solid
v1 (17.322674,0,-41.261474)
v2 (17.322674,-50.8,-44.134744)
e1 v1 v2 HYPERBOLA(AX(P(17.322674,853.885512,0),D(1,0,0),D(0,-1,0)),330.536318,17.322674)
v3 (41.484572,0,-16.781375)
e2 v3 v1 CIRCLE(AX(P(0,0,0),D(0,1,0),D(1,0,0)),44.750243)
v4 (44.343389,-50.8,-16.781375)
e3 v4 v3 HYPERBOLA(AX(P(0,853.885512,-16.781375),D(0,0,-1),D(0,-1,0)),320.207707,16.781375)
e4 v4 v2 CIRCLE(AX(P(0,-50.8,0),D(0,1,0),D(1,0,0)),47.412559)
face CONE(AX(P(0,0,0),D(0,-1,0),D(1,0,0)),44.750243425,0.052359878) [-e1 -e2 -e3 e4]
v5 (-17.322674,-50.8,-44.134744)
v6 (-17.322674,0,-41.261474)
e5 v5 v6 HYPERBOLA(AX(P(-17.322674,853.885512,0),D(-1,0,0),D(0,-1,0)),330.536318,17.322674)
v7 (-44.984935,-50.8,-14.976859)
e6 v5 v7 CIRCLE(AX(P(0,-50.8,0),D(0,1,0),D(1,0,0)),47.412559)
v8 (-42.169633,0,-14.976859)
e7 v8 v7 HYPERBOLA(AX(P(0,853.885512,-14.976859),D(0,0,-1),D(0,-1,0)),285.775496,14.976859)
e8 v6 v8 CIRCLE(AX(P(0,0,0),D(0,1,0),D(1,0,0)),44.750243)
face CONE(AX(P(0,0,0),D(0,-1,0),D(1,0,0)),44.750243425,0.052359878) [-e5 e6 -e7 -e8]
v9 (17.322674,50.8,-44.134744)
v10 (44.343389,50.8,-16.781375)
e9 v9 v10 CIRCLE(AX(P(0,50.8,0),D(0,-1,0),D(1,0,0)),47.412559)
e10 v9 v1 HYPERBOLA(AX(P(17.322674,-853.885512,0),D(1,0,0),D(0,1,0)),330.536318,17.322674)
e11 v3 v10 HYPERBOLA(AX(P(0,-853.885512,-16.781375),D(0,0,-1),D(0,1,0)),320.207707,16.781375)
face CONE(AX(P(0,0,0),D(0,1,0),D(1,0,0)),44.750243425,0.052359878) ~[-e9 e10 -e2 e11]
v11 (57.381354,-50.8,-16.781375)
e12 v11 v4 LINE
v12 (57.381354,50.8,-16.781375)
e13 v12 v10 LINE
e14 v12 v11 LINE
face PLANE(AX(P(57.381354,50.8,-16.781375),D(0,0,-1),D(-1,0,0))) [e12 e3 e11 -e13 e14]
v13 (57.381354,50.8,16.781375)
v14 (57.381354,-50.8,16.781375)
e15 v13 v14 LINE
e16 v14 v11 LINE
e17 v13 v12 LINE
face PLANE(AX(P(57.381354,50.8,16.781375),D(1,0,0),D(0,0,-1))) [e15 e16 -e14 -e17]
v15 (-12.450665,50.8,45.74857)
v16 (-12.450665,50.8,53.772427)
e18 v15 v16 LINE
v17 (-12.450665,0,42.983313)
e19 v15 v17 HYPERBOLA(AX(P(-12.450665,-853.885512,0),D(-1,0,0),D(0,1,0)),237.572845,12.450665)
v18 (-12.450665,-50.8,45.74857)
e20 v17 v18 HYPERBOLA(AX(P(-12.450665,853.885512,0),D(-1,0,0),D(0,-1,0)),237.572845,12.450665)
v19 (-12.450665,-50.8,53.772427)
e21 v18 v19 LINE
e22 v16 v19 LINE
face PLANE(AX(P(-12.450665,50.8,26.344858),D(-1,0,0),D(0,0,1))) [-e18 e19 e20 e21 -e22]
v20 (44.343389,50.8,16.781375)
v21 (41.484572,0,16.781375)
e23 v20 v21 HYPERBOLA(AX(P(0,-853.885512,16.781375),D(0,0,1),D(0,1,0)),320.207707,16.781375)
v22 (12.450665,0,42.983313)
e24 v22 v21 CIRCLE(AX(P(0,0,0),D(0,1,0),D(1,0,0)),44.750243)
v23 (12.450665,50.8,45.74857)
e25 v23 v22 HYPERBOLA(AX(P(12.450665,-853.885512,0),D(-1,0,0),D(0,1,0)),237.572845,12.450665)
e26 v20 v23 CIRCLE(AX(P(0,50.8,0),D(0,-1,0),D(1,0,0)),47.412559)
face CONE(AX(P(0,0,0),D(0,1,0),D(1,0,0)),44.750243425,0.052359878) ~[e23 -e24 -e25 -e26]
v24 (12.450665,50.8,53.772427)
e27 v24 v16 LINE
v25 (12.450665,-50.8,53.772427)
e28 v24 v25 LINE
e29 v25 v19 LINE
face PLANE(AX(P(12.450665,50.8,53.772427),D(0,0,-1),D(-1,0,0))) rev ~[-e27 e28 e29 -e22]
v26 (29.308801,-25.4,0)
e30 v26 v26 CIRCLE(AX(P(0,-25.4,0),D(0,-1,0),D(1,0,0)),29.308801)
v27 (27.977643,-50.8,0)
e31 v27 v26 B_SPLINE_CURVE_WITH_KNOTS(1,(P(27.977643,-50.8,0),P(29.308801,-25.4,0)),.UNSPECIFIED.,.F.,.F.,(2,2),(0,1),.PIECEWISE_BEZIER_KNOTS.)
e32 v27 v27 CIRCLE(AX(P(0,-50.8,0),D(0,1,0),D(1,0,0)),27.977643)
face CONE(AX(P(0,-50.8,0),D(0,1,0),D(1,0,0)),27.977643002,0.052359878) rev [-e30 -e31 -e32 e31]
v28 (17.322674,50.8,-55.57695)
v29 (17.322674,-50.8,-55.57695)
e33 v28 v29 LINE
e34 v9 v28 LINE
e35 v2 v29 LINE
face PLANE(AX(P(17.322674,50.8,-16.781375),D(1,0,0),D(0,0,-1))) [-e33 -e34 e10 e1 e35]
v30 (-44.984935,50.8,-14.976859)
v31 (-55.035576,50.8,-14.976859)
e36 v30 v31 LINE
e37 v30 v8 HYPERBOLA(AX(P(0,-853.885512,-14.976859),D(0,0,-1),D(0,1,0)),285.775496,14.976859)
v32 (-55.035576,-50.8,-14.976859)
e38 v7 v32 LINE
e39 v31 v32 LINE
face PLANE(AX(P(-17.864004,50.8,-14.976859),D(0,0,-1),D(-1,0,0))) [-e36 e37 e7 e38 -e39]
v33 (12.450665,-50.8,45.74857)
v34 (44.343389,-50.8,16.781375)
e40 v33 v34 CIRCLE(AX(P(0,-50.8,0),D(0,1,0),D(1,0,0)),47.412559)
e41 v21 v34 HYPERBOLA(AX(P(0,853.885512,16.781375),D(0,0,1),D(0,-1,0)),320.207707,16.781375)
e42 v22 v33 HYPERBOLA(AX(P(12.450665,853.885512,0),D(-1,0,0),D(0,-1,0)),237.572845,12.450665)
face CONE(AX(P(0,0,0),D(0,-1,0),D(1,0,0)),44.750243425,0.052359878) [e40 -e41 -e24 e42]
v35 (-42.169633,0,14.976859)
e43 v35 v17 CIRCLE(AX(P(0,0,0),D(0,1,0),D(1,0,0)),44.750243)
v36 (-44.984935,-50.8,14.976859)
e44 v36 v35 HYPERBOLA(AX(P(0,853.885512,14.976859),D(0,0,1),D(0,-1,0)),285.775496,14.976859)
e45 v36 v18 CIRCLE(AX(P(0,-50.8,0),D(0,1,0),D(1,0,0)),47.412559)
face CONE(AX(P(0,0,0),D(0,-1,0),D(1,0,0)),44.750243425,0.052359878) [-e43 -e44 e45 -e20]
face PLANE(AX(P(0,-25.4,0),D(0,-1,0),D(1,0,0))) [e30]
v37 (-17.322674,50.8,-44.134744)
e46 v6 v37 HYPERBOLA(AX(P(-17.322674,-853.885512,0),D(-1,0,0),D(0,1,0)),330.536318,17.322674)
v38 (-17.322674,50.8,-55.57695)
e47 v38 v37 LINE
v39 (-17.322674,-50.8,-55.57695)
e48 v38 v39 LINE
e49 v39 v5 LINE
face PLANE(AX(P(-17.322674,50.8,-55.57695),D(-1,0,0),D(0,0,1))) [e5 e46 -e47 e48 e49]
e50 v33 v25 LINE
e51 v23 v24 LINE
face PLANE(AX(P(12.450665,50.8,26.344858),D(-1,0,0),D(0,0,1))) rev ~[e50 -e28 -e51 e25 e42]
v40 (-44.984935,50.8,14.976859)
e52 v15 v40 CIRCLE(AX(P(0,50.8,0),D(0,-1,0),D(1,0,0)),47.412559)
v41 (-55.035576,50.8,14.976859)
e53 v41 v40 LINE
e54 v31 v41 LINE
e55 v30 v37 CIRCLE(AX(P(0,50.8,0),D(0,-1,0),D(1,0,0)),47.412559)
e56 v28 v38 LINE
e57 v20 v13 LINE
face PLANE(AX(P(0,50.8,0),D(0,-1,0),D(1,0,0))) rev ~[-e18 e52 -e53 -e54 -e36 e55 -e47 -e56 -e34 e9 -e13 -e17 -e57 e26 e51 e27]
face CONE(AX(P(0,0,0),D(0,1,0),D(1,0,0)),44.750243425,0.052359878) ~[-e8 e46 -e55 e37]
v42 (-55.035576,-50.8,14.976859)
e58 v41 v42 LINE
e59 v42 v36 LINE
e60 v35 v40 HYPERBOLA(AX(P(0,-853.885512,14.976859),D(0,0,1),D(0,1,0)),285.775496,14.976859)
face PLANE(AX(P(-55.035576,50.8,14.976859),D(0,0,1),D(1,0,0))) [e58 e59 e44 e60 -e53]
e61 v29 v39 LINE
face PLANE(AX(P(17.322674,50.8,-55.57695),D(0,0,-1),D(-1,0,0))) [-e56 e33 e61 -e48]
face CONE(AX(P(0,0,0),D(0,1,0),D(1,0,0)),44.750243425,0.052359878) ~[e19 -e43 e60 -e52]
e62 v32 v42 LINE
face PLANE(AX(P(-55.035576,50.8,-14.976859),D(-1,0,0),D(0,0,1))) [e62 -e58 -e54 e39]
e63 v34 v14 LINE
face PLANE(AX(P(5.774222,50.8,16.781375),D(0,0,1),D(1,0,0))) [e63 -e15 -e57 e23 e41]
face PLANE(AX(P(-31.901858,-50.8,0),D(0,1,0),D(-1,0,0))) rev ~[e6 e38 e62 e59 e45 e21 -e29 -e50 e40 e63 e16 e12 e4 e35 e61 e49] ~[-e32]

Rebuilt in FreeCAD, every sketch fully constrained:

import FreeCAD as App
import Part
import Sketcher
from FreeCAD import Vector


def add_polygon(sketch, points):
    """Adds a closed chain of lines whose ends are joined by coincident constraints."""
    first, n = sketch.GeometryCount, len(points)
    for a, b in zip(points, points[1:] + points[:1]):
        sketch.addGeometry(Part.LineSegment(App.Vector(*a, 0), App.Vector(*b, 0)), False)
    for i in range(n):
        sketch.addConstraint(Sketcher.Constraint("Coincident", first + i, 2, first + (i + 1) % n, 1))

doc = App.newDocument("Part")
params = doc.addObject("Spreadsheet::Sheet", "Params")
for row, (alias, value) in enumerate([
    ("pad1_length", "4 in"),
    ("pad1_taper", "3 deg"),
    ("pad2_length", "4 in"),
    ("pocket1_length", "1 in"),
    ("pocket1_taper", "3 deg"),
], start=1):
    params.set(f"A{row}", alias)
    params.set(f"B{row}", "=" + value)
    params.setAlias(f"B{row}", alias)

body = doc.addObject("PartDesign::Body", "Body")

# Sketch on XZ plane
sketch1 = doc.addObject("Sketcher::SketchObject", "Sketch")
body.addObject(sketch1)
sketch1.AttachmentSupport = (doc.XZ_Plane, [""])
sketch1.MapMode = "FlatFace"
sketch1.addGeometry(Part.Circle(Vector(0, 0, 0), Vector(0, 0, 1), 45), False)
sketch1.addConstraint([
    Sketcher.Constraint("Coincident", 0, 3, -1, 1),
    Sketcher.Constraint("Diameter", 0, 89.500487),
])
pad1 = doc.addObject("PartDesign::Pad", "Pad")
body.addObject(pad1)
pad1.Profile = sketch1
pad1.setExpression("Length", "Params.pad1_length")
pad1.Midplane = True
pad1.setExpression("TaperAngle", "Params.pad1_taper")

# Sketch on XZ plane
sketch2 = doc.addObject("Sketcher::SketchObject", "Sketch001")
body.addObject(sketch2)
sketch2.AttachmentSupport = (doc.XZ_Plane, [""])
sketch2.MapMode = "FlatFace"
sketch2.AttachmentOffset = App.Placement(Vector(0, 0, -2 * 25.4), App.Rotation())
add_polygon(sketch2, [(-18, 15), (-18, -15), (-55, -15), (-55, 15)])  # lines 0-3
add_polygon(sketch2, [(12, 54), (12, 26), (-12, 26), (-12, 54)])  # lines 4-7
add_polygon(sketch2, [(17, -56), (-17, -56), (-17, -15), (6, -15), (6, 17), (57, 17), (57, -17), (17, -17)])  # lines 8-15
sketch2.addConstraint([
    Sketcher.Constraint("Vertical", 0),
    Sketcher.Constraint("Horizontal", 1),
    Sketcher.Constraint("Vertical", 2),
    Sketcher.Constraint("Horizontal", 3),
    Sketcher.Constraint("Vertical", 4),
    Sketcher.Constraint("Horizontal", 5),
    Sketcher.Constraint("Vertical", 6),
    Sketcher.Constraint("Horizontal", 7),
    Sketcher.Constraint("Horizontal", 8),
    Sketcher.Constraint("Vertical", 9),
    Sketcher.Constraint("Horizontal", 10),
    Sketcher.Constraint("Vertical", 11),
    Sketcher.Constraint("Horizontal", 12),
    Sketcher.Constraint("Vertical", 13),
    Sketcher.Constraint("Horizontal", 14),
    Sketcher.Constraint("Vertical", 15),
    Sketcher.Constraint("DistanceX", 5, 2, 5, 1, 24.90133),
    Sketcher.Constraint("DistanceX", 8, 2, 8, 1, 34.645349),
    Sketcher.Constraint("DistanceX", 12, 1, 12, 2, 51.607132),
    Sketcher.Constraint("DistanceX", 14, 2, 14, 1, 40.05868),
    Sketcher.Constraint("DistanceY", 0, 2, 0, 1, 29.953718),
    Sketcher.Constraint("DistanceY", 4, 2, 4, 1, 27.427569),
    Sketcher.Constraint("DistanceY", 11, 1, 11, 2, 31.57784),
    Sketcher.Constraint("DistanceY", 13, 2, 13, 1, 33.56275),
    Sketcher.Constraint("DistanceY", 3, 2, 4, 2, 11.367999),
    Sketcher.Constraint("DistanceX", 1, 2, 8, 2, 37.712902),
    Sketcher.Constraint("DistanceX", 1, 2, 1, 1, 37.171572),
    Sketcher.Constraint("DistanceY", 9, 1, 9, 2, 40.780485),
    Sketcher.Constraint("DistanceY", 0, 2, -1, 1, 14.976859),
    Sketcher.Constraint("DistanceY", 8, 2, -1, 1, 55.57695),
    Sketcher.Constraint("DistanceX", 3, 2, 4, 2, 30.314669),
    Sketcher.Constraint("DistanceX", 0, 2, -1, 1, 17.864004),
])
pad2 = doc.addObject("PartDesign::Pad", "Pad001")
body.addObject(pad2)
pad2.Profile = sketch2
pad2.setExpression("Length", "Params.pad2_length")

# Sketch on XZ plane
sketch3 = doc.addObject("Sketcher::SketchObject", "Sketch002")
body.addObject(sketch3)
sketch3.AttachmentSupport = (doc.XZ_Plane, [""])
sketch3.MapMode = "FlatFace"
sketch3.AttachmentOffset = App.Placement(Vector(0, 0, 2 * 25.4), App.Rotation())
sketch3.addGeometry(Part.Circle(Vector(0, 0, 0), Vector(0, 0, 1), 28), False)
sketch3.addConstraint([
    Sketcher.Constraint("Coincident", 0, 3, -1, 1),
    Sketcher.Constraint("Diameter", 0, 55.955286),
])
pocket1 = doc.addObject("PartDesign::Pocket", "Pocket")
body.addObject(pocket1)
pocket1.Profile = sketch3
pocket1.setExpression("Length", "Params.pocket1_length")
pocket1.setExpression("TaperAngle", "Params.pocket1_taper")

doc.recompute()
